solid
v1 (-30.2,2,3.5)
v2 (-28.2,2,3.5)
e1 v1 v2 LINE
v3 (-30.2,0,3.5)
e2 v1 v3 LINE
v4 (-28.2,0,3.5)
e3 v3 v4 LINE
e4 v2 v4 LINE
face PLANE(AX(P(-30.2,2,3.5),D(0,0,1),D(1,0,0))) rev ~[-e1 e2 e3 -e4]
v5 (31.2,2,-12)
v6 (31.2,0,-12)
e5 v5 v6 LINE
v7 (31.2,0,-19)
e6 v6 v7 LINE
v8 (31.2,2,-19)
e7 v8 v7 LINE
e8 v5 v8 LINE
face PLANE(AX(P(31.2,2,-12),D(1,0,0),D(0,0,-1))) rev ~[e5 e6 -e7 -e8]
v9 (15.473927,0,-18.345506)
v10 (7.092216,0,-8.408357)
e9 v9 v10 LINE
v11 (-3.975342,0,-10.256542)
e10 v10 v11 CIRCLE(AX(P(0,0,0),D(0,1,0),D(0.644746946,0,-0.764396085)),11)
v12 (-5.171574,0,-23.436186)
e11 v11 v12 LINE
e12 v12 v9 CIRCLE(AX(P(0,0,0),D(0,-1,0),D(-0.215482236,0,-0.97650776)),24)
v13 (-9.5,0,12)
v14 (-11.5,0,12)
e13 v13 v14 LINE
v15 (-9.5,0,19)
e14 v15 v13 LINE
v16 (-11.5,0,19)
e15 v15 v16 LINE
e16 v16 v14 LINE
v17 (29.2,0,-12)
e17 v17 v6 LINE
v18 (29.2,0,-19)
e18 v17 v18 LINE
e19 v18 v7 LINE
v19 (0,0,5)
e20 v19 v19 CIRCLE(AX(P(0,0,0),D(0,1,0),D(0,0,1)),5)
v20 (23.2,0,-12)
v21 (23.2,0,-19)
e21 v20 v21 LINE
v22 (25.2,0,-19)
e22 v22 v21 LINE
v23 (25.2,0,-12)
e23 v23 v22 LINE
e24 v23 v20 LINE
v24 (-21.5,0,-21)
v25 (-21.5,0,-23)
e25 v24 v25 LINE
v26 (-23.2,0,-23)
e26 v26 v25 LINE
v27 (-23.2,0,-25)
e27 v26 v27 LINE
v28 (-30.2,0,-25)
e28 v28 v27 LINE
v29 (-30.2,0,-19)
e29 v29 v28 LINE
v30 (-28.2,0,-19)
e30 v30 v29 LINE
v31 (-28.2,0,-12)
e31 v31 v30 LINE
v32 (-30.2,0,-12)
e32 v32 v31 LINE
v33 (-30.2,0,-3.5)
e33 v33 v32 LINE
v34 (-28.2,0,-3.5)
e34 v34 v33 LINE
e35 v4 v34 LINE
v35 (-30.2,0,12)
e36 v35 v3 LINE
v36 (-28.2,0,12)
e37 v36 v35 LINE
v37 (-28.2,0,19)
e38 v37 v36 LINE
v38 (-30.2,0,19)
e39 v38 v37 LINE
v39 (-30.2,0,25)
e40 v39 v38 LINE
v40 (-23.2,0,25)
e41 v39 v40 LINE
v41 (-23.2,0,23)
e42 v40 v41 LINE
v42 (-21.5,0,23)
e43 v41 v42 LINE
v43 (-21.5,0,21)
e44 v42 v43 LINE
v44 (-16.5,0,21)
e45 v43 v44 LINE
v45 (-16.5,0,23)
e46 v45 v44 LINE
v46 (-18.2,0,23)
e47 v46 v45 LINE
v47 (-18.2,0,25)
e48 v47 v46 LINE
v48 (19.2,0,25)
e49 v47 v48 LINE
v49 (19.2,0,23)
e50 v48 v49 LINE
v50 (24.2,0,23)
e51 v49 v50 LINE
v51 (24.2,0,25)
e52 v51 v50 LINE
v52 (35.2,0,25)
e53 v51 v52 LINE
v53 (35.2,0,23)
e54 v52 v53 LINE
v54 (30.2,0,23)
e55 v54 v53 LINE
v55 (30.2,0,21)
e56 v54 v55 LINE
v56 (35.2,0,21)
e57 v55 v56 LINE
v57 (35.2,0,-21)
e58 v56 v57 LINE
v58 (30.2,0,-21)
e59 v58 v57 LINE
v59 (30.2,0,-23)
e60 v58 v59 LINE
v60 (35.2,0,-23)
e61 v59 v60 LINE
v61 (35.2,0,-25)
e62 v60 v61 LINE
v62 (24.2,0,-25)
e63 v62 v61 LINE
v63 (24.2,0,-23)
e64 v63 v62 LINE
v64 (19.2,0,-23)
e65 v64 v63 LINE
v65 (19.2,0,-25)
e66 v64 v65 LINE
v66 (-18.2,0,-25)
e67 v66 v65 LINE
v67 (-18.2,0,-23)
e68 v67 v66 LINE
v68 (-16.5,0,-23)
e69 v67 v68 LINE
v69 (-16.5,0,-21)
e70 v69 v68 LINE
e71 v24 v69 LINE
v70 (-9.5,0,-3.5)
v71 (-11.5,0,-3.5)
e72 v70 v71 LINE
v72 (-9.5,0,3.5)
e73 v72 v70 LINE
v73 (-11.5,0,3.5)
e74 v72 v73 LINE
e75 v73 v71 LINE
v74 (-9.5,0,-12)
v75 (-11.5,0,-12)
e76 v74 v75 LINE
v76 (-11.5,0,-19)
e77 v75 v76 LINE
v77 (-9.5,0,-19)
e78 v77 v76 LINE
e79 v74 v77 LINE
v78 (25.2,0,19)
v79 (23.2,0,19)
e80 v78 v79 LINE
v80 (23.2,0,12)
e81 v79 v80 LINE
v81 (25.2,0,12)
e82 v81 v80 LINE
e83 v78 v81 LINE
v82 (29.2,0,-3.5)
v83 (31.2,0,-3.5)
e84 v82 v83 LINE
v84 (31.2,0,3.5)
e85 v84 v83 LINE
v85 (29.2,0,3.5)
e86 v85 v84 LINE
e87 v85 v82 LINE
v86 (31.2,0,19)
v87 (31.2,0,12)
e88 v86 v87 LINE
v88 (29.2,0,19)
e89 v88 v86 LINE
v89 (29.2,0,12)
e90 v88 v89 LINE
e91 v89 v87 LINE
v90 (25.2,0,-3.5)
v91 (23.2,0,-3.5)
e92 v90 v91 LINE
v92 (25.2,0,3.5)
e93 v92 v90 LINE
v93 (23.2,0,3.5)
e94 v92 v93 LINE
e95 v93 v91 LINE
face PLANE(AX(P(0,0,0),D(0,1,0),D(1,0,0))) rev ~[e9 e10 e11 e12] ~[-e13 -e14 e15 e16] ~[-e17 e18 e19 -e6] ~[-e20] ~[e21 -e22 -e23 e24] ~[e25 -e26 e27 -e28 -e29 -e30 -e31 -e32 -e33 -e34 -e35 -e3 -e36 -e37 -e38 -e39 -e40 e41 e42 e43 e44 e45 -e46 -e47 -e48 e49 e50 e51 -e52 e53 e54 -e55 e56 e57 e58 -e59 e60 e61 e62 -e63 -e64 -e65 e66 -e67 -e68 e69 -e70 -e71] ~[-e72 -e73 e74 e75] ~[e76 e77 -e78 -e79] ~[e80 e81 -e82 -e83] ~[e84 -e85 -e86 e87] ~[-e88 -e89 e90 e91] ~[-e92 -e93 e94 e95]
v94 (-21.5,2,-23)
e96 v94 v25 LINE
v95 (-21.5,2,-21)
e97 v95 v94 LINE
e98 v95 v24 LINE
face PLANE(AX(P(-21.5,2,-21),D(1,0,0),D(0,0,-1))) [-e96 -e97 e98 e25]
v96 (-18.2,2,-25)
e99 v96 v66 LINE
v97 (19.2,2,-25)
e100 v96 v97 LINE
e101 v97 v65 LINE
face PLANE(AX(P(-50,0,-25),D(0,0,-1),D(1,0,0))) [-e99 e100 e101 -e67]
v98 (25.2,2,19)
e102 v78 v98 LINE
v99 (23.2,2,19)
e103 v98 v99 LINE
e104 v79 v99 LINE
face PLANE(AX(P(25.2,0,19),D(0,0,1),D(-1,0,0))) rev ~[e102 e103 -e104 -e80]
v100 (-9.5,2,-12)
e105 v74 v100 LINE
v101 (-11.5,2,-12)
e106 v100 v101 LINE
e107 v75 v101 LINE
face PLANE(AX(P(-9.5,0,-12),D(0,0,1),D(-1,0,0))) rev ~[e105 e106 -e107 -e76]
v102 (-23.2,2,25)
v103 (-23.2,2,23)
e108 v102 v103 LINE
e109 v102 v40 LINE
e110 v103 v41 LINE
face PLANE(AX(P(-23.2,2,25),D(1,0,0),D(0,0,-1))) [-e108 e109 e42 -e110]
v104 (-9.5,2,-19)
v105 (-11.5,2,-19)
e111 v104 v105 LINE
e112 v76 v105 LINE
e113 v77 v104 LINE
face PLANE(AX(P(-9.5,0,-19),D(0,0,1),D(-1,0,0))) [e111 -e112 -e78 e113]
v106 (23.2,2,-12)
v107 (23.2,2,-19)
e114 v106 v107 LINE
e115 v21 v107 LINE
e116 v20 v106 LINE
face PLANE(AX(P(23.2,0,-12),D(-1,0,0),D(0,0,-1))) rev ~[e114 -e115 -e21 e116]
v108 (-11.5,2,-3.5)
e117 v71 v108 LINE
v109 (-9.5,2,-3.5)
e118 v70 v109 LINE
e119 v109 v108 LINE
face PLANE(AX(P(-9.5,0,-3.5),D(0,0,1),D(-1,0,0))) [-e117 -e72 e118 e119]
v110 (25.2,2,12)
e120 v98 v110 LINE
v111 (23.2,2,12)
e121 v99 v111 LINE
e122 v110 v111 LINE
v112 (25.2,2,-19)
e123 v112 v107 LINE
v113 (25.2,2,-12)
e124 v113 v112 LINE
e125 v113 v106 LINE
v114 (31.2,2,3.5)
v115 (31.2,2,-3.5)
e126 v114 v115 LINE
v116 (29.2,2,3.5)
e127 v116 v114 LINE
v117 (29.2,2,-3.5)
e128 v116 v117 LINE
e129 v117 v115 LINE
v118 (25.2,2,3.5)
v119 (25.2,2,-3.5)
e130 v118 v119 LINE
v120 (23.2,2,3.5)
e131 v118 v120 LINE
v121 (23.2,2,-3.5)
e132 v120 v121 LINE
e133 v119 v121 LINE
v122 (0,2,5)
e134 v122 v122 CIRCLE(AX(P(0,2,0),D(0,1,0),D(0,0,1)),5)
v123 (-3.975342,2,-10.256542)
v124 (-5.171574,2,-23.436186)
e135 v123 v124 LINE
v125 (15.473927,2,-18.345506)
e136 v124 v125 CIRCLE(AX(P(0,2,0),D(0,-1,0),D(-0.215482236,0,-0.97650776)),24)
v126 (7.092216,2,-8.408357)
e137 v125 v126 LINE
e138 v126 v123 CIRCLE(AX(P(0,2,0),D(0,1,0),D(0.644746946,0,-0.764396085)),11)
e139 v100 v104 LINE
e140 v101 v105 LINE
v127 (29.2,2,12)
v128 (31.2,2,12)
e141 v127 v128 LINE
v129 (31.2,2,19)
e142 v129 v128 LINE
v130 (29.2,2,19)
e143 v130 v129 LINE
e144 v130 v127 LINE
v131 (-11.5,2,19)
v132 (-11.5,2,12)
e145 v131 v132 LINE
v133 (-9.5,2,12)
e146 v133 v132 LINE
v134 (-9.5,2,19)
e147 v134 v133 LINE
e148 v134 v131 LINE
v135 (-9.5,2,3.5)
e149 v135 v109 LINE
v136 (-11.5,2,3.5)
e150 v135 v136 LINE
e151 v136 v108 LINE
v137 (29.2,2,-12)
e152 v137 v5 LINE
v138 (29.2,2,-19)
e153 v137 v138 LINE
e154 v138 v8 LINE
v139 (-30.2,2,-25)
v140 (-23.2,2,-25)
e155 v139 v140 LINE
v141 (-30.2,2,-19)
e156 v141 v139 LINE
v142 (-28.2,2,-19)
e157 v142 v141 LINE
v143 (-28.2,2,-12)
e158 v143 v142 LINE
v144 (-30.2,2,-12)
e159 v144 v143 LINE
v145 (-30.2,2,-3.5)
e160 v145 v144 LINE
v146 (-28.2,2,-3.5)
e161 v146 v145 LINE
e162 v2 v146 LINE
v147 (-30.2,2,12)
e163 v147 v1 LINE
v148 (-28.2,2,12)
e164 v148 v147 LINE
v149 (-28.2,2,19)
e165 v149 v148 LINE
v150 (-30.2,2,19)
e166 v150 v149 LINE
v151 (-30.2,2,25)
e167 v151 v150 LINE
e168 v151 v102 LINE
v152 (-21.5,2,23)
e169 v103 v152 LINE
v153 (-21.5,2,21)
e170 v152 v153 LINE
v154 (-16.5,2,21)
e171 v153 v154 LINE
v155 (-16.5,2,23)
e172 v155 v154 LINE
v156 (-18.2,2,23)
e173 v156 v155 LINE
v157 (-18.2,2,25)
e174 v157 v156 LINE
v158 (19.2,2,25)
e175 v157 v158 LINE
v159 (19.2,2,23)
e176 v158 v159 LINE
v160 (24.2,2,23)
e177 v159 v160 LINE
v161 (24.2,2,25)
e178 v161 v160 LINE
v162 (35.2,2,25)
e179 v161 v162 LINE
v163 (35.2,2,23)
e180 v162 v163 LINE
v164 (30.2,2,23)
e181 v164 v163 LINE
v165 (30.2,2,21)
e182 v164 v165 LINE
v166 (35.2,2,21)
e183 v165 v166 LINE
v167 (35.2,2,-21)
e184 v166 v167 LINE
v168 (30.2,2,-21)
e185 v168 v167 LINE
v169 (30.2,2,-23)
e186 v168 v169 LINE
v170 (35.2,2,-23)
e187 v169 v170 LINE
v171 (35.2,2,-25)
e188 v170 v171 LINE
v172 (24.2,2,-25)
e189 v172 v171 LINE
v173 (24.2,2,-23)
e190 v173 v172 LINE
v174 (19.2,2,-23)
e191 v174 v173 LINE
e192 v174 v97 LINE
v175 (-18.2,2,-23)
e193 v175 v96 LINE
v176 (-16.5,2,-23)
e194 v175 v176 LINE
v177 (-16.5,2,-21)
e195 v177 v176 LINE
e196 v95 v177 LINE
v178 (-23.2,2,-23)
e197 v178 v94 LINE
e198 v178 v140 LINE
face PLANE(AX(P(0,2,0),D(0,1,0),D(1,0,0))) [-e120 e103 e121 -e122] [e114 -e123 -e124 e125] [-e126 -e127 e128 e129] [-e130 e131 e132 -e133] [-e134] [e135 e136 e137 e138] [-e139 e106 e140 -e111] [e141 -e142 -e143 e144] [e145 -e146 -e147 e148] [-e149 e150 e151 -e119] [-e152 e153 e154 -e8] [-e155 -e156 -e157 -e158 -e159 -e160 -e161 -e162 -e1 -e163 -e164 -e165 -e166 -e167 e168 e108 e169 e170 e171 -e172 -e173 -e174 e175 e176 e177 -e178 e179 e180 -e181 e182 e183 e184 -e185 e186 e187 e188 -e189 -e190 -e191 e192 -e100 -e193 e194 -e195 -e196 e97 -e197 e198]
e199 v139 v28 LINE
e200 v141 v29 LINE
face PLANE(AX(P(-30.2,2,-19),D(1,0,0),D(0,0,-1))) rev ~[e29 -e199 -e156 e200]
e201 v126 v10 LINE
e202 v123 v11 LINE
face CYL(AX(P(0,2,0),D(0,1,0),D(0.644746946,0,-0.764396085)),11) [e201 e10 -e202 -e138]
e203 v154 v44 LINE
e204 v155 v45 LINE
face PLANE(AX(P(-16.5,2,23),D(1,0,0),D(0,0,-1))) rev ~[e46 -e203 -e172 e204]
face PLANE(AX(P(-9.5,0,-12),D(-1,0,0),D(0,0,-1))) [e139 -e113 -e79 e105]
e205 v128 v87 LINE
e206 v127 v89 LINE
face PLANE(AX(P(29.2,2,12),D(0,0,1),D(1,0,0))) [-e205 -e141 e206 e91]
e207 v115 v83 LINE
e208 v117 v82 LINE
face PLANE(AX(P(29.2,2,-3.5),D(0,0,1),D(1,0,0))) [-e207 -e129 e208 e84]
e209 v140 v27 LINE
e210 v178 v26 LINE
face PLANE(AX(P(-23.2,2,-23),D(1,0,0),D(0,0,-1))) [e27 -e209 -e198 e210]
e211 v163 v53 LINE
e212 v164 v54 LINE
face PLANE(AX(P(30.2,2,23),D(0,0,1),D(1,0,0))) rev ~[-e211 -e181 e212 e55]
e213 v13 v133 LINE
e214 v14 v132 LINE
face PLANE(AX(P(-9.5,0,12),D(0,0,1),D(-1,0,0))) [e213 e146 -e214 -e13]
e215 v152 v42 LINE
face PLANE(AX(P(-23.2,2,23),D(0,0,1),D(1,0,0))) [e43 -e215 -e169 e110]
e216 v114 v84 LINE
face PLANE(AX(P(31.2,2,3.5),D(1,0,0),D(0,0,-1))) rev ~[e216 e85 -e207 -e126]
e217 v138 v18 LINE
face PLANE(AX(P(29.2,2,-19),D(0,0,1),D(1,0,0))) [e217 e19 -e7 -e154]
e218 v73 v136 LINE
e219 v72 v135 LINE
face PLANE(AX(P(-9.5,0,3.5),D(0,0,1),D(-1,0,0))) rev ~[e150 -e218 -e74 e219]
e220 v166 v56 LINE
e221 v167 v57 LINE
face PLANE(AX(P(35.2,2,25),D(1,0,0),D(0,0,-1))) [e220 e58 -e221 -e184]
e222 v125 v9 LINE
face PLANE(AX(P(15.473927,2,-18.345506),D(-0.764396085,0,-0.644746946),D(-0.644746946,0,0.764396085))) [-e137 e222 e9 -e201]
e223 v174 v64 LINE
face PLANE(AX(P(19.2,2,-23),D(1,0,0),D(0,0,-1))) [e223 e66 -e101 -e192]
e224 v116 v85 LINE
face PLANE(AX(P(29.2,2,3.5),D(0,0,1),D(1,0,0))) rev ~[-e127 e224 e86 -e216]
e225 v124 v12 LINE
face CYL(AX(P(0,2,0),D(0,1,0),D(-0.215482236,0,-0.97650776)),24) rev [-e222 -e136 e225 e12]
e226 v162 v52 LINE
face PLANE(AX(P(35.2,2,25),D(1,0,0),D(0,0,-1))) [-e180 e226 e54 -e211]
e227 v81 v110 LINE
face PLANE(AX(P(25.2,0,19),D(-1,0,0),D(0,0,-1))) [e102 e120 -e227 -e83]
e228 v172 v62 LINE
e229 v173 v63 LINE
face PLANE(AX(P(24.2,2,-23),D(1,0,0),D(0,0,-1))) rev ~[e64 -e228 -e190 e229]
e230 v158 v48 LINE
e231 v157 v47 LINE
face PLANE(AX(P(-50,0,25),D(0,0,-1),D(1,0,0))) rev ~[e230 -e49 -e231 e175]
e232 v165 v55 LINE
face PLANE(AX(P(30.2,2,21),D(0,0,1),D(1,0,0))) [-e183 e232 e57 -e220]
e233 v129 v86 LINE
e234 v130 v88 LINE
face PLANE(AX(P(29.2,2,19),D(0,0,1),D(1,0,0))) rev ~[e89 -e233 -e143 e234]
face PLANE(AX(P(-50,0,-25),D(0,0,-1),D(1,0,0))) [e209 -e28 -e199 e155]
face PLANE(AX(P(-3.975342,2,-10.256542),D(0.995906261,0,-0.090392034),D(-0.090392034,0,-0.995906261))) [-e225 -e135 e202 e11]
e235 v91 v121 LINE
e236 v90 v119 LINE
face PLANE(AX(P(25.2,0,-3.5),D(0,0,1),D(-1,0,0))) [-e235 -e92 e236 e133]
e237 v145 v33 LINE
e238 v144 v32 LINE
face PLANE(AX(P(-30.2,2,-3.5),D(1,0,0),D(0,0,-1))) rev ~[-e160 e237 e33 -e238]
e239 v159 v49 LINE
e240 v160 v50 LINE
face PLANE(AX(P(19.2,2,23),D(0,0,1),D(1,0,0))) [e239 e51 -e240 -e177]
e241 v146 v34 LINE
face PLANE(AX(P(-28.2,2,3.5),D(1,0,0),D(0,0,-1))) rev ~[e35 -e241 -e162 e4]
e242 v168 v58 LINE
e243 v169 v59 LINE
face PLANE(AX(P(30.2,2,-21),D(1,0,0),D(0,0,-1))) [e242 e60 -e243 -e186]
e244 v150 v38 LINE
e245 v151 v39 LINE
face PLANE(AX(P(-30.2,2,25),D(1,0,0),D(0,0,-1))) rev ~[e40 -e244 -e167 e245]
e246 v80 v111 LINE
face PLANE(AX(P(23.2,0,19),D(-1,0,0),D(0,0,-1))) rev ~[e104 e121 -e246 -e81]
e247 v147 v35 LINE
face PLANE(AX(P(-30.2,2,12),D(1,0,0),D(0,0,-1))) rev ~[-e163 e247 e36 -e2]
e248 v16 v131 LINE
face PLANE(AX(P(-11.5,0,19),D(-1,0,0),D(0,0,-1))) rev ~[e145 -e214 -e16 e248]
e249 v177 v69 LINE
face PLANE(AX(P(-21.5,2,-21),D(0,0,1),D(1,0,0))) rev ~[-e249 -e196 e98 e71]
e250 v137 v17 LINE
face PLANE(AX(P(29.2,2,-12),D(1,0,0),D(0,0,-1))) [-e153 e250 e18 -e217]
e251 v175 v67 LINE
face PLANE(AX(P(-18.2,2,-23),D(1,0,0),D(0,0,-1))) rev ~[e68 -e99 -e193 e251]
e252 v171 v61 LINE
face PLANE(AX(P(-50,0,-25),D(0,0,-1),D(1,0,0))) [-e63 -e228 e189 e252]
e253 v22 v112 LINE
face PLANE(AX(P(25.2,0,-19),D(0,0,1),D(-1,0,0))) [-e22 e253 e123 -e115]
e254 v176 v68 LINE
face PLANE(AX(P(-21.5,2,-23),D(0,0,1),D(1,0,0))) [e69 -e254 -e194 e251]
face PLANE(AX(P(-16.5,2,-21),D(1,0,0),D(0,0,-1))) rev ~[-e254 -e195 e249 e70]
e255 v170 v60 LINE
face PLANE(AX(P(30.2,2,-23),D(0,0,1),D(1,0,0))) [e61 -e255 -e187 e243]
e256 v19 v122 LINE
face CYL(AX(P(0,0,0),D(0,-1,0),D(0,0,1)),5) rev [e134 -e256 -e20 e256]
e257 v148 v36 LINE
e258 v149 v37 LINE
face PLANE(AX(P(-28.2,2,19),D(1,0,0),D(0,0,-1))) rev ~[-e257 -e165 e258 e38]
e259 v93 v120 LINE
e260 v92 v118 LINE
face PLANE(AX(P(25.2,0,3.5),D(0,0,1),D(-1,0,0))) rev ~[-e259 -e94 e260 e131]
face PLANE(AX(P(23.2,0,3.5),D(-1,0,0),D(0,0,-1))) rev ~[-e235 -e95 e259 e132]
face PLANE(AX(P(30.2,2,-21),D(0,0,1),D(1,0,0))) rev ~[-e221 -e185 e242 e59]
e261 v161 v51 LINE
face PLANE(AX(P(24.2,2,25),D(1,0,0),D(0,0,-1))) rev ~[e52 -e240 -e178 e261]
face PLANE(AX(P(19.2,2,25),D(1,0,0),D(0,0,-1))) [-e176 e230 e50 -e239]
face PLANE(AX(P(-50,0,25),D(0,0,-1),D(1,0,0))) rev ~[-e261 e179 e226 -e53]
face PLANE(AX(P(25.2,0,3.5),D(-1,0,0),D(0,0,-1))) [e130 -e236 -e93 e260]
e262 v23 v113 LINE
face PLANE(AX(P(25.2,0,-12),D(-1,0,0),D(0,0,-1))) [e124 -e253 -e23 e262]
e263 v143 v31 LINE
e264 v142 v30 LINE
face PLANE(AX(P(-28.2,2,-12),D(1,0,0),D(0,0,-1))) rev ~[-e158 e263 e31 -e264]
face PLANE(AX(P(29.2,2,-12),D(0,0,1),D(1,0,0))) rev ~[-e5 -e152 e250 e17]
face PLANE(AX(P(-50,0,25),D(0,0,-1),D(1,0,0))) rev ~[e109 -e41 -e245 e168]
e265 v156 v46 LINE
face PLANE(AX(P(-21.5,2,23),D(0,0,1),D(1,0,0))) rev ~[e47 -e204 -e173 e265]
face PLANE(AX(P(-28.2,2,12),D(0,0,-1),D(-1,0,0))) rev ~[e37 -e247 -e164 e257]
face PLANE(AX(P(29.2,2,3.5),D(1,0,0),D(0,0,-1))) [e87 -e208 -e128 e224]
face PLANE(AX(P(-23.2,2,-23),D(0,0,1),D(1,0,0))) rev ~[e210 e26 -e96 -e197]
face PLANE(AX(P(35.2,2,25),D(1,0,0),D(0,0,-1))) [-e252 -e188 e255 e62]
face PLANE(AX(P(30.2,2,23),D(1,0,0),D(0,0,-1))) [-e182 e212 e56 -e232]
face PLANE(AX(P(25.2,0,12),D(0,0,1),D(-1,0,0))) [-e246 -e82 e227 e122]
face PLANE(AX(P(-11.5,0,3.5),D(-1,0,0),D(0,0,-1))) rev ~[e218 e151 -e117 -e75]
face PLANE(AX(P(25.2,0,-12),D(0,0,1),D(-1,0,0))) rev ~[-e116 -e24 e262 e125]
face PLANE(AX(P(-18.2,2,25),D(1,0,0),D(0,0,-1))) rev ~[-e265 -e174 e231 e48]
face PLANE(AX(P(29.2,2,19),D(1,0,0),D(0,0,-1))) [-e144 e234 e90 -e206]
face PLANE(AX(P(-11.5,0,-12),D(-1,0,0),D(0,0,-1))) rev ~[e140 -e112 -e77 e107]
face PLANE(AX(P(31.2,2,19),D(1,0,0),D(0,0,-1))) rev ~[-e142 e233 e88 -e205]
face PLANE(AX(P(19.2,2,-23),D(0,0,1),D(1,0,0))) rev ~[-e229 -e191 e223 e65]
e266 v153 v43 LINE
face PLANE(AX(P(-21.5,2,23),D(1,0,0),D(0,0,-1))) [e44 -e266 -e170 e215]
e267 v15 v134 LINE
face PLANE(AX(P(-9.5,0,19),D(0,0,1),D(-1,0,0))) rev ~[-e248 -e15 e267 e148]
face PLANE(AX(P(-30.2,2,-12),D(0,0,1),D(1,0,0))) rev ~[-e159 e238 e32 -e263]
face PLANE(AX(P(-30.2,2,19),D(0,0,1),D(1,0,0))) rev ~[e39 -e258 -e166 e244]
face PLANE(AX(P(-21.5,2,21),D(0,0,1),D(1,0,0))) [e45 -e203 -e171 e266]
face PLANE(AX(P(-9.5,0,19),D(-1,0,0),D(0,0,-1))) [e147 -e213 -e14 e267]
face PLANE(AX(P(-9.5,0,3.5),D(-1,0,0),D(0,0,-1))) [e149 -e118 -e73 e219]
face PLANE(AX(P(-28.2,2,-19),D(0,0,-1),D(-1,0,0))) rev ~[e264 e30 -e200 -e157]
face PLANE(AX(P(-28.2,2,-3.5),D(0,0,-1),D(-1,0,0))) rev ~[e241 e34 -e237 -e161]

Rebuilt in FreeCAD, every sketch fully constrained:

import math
import FreeCAD as App
import Part
import Sketcher

doc = App.newDocument("Part")
body = doc.addObject("PartDesign::Body", "Body")

# Sketch on XZ plane
sketch1 = body.newObject("Sketcher::SketchObject", "Sketch")
sketch1.AttachmentSupport = (doc.getObject("XZ_Plane"), [""])
sketch1.MapMode = "FlatFace"
sketch1.addGeometry([
    Part.LineSegment(App.Vector(-50, -25, 0), App.Vector(-50, 25, 0)),  # 0
    Part.LineSegment(App.Vector(-50, 25, 0), App.Vector(50, 25, 0)),  # 1
    Part.LineSegment(App.Vector(50, 25, 0), App.Vector(50, -25, 0)),  # 2
    Part.LineSegment(App.Vector(50, -25, 0), App.Vector(-50, -25, 0)),  # 3
    Part.Circle(App.Vector(0, 0, 0), App.Vector(0, 0, 1), 5),  # 4
], False)
sketch1.addConstraint([
    Sketcher.Constraint("Coincident", 0, 2, 1, 1),
    Sketcher.Constraint("Coincident", 1, 2, 2, 1),
    Sketcher.Constraint("Coincident", 2, 2, 3, 1),
    Sketcher.Constraint("Coincident", 3, 2, 0, 1),
    Sketcher.Constraint("Vertical", 0),
    Sketcher.Constraint("Horizontal", 1),
    Sketcher.Constraint("Vertical", 2),
    Sketcher.Constraint("Horizontal", 3),
    Sketcher.Constraint("Coincident", 4, 3, -1, 1),
    Sketcher.Constraint("Symmetric", 0, 2, 2, 2, -1, 1),
    Sketcher.Constraint("Diameter", 4, 10.0),
    Sketcher.Constraint("DistanceX", 1, 1, 1, 2, 100.0),
    Sketcher.Constraint("DistanceY", 0, 1, 0, 2, 50.0),
])
pad1 = body.newObject("PartDesign::Pad", "Pad")
pad1.Profile = sketch1
pad1.Length = 2
pad1.Reversed = True

# Sketch on XZ plane
sketch2 = body.newObject("Sketcher::SketchObject", "Sketch001")
sketch2.AttachmentSupport = (doc.getObject("XZ_Plane"), [""])
sketch2.MapMode = "FlatFace"
sketch2.addGeometry([
    Part.LineSegment(App.Vector(25.2, 12, 0), App.Vector(25.2, 19, 0)),  # 0
    Part.LineSegment(App.Vector(25.2, 19, 0), App.Vector(23.2, 19, 0)),  # 1
    Part.LineSegment(App.Vector(23.2, 19, 0), App.Vector(23.2, 12, 0)),  # 2
    Part.LineSegment(App.Vector(23.2, 12, 0), App.Vector(25.2, 12, 0)),  # 3
    Part.LineSegment(App.Vector(25.2, -3.5, 0), App.Vector(25.2, 3.5, 0)),  # 4
    Part.LineSegment(App.Vector(25.2, 3.5, 0), App.Vector(23.2, 3.5, 0)),  # 5
    Part.LineSegment(App.Vector(23.2, 3.5, 0), App.Vector(23.2, -3.5, 0)),  # 6
    Part.LineSegment(App.Vector(23.2, -3.5, 0), App.Vector(25.2, -3.5, 0)),  # 7
    Part.LineSegment(App.Vector(25.2, -19, 0), App.Vector(25.2, -12, 0)),  # 8
    Part.LineSegment(App.Vector(25.2, -12, 0), App.Vector(23.2, -12, 0)),  # 9
    Part.LineSegment(App.Vector(23.2, -12, 0), App.Vector(23.2, -19, 0)),  # 10
    Part.LineSegment(App.Vector(23.2, -19, 0), App.Vector(25.2, -19, 0)),  # 11
    Part.LineSegment(App.Vector(-9.5, -19, 0), App.Vector(-9.5, -12, 0)),  # 12
    Part.LineSegment(App.Vector(-9.5, -12, 0), App.Vector(-11.5, -12, 0)),  # 13
    Part.LineSegment(App.Vector(-11.5, -12, 0), App.Vector(-11.5, -19, 0)),  # 14
    Part.LineSegment(App.Vector(-11.5, -19, 0), App.Vector(-9.5, -19, 0)),  # 15
    Part.LineSegment(App.Vector(-9.5, -3.5, 0), App.Vector(-9.5, 3.5, 0)),  # 16
    Part.LineSegment(App.Vector(-9.5, 3.5, 0), App.Vector(-11.5, 3.5, 0)),  # 17
    Part.LineSegment(App.Vector(-11.5, 3.5, 0), App.Vector(-11.5, -3.5, 0)),  # 18
    Part.LineSegment(App.Vector(-11.5, -3.5, 0), App.Vector(-9.5, -3.5, 0)),  # 19
    Part.LineSegment(App.Vector(-9.5, 12, 0), App.Vector(-9.5, 19, 0)),  # 20
    Part.LineSegment(App.Vector(-9.5, 19, 0), App.Vector(-11.5, 19, 0)),  # 21
    Part.LineSegment(App.Vector(-11.5, 19, 0), App.Vector(-11.5, 12, 0)),  # 22
    Part.LineSegment(App.Vector(-11.5, 12, 0), App.Vector(-9.5, 12, 0)),  # 23
], False)
sketch2.addConstraint([
    Sketcher.Constraint("Coincident", 0, 2, 1, 1),
    Sketcher.Constraint("Coincident", 1, 2, 2, 1),
    Sketcher.Constraint("Coincident", 2, 2, 3, 1),
    Sketcher.Constraint("Coincident", 3, 2, 0, 1),
    Sketcher.Constraint("Coincident", 4, 2, 5, 1),
    Sketcher.Constraint("Coincident", 5, 2, 6, 1),
    Sketcher.Constraint("Coincident", 6, 2, 7, 1),
    Sketcher.Constraint("Coincident", 7, 2, 4, 1),
    Sketcher.Constraint("Coincident", 8, 2, 9, 1),
    Sketcher.Constraint("Coincident", 9, 2, 10, 1),
    Sketcher.Constraint("Coincident", 10, 2, 11, 1),
    Sketcher.Constraint("Coincident", 11, 2, 8, 1),
    Sketcher.Constraint("Coincident", 12, 2, 13, 1),
    Sketcher.Constraint("Coincident", 13, 2, 14, 1),
    Sketcher.Constraint("Coincident", 14, 2, 15, 1),
    Sketcher.Constraint("Coincident", 15, 2, 12, 1),
    Sketcher.Constraint("Coincident", 16, 2, 17, 1),
    Sketcher.Constraint("Coincident", 17, 2, 18, 1),
    Sketcher.Constraint("Coincident", 18, 2, 19, 1),
    Sketcher.Constraint("Coincident", 19, 2, 16, 1),
    Sketcher.Constraint("Coincident", 20, 2, 21, 1),
    Sketcher.Constraint("Coincident", 21, 2, 22, 1),
    Sketcher.Constraint("Coincident", 22, 2, 23, 1),
    Sketcher.Constraint("Coincident", 23, 2, 20, 1),
    Sketcher.Constraint("Vertical", 0),
    Sketcher.Constraint("Horizontal", 1),
    Sketcher.Constraint("Vertical", 2),
    Sketcher.Constraint("Horizontal", 3),
    Sketcher.Constraint("Vertical", 4),
    Sketcher.Constraint("Horizontal", 5),
    Sketcher.Constraint("Vertical", 6),
    Sketcher.Constraint("Horizontal", 7),
    Sketcher.Constraint("Vertical", 8),
    Sketcher.Constraint("Horizontal", 9),
    Sketcher.Constraint("Vertical", 10),
    Sketcher.Constraint("Horizontal", 11),
    Sketcher.Constraint("Vertical", 12),
    Sketcher.Constraint("Horizontal", 13),
    Sketcher.Constraint("Vertical", 14),
    Sketcher.Constraint("Horizontal", 15),
    Sketcher.Constraint("Vertical", 16),
    Sketcher.Constraint("Horizontal", 17),
    Sketcher.Constraint("Vertical", 18),
    Sketcher.Constraint("Horizontal", 19),
    Sketcher.Constraint("Vertical", 20),
    Sketcher.Constraint("Horizontal", 21),
    Sketcher.Constraint("Vertical", 22),
    Sketcher.Constraint("Horizontal", 23),
    Sketcher.Constraint("Symmetric", 3, 2, 8, 2, -1),
    Sketcher.Constraint("Symmetric", 1, 2, 10, 2, -1),
    Sketcher.Constraint("Symmetric", 15, 2, 20, 2, -1),
    Sketcher.Constraint("Symmetric", 13, 2, 22, 2, -1),
    Sketcher.Constraint("Horizontal", 9, 2, 12, 2),
    Sketcher.Constraint("Horizontal", 11, 2, 14, 2),
    Sketcher.Constraint("Horizontal", 5, 2, 16, 2),
    Sketcher.Constraint("Horizontal", 7, 2, 18, 2),
    Sketcher.Constraint("Vertical", 3, 2, 4, 2),
    Sketcher.Constraint("Vertical", 2, 2, 5, 2),
    Sketcher.Constraint("Vertical", 15, 2, 16, 2),
    Sketcher.Constraint("Vertical", 14, 2, 17, 2),
    Sketcher.Constraint("Equal", 11, 13),
    Sketcher.Constraint("Equal", 2, 4),
    Sketcher.Constraint("DistanceX", 1, 2, 1, 1, 2.0),
    Sketcher.Constraint("DistanceY", 0, 1, 0, 2, 7.0),
    Sketcher.Constraint("DistanceY", -1, 1, 0, 2, 19.0),
    Sketcher.Constraint("DistanceX", -1, 1, 0, 2, 25.2),
    Sketcher.Constraint("DistanceY", -1, 1, 4, 2, 3.5),
    Sketcher.Constraint("DistanceX", 12, 2, -1, 1, 9.5),
])
pocket1 = body.newObject("PartDesign::Pocket", "Pocket")
pocket1.Profile = sketch2
pocket1.Length = 2

# Sketch on XZ plane
sketch3 = body.newObject("Sketcher::SketchObject", "Sketch002")
sketch3.AttachmentSupport = (doc.getObject("XZ_Plane"), [""])
sketch3.MapMode = "FlatFace"
sketch3.AttachmentOffset = App.Placement(App.Vector(0, 0, -2), App.Rotation())
sketch3.addGeometry([
    Part.ArcOfCircle(Part.Circle(App.Vector(0, 0, 0), App.Vector(0, 0, 1), 24), math.radians(-102.443821), math.radians(-49.853295)),
    Part.LineSegment(App.Vector(-5.171574, -23.436186, 0), App.Vector(-3.975342, -10.256542, 0)),
    Part.ArcOfCircle(Part.Circle(App.Vector(0, 0, 0), App.Vector(0, 0, 1), 11), math.radians(-111.185874), math.radians(-49.853295)),
    Part.LineSegment(App.Vector(7.092216, -8.408357, 0), App.Vector(15.473927, -18.345506, 0)),
], False)
sketch3.addConstraint([
    Sketcher.Constraint("Coincident", 0, 1, 1, 1),
    Sketcher.Constraint("Coincident", 1, 2, 2, 1),
    Sketcher.Constraint("Coincident", 2, 2, 3, 1),
    Sketcher.Constraint("Coincident", 3, 2, 0, 2),
    Sketcher.Constraint("Coincident", 0, 3, -1, 1),
    Sketcher.Constraint("Coincident", 2, 3, -1, 1),
    Sketcher.Constraint("Radius", 0, 24.0),
    Sketcher.Constraint("Radius", 2, 11.0),
    Sketcher.Constraint("DistanceX", 0, 1, 3, 2, 20.6455),
    Sketcher.Constraint("Distance", 1, 13.23382),
    Sketcher.Constraint("DistanceX", 1, 2, -1, 1, 3.975342),
    Sketcher.Constraint("DistanceX", 1, 2, 2, 2, 11.067558),
])
pocket2 = body.newObject("PartDesign::Pocket", "Pocket001")
pocket2.Profile = sketch3
pocket2.Length = 2
pocket2.Reversed = True

# Sketch on XZ plane
sketch4 = body.newObject("Sketcher::SketchObject", "Sketch003")
sketch4.AttachmentSupport = (doc.getObject("XZ_Plane"), [""])
sketch4.MapMode = "FlatFace"
sketch4.AttachmentOffset = App.Placement(App.Vector(0, 0, -2), App.Rotation())
sketch4.addGeometry([
    Part.LineSegment(App.Vector(30.2, -23, 0), App.Vector(30.2, -21, 0)),  # 0
    Part.LineSegment(App.Vector(30.2, -21, 0), App.Vector(35.2, -21, 0)),  # 1
    Part.LineSegment(App.Vector(35.2, -21, 0), App.Vector(35.2, -23, 0)),  # 2
    Part.LineSegment(App.Vector(35.2, -23, 0), App.Vector(30.2, -23, 0)),  # 3
    Part.LineSegment(App.Vector(-21.5, -23, 0), App.Vector(-21.5, -21, 0)),  # 4
    Part.LineSegment(App.Vector(-21.5, -21, 0), App.Vector(-16.5, -21, 0)),  # 5
    Part.LineSegment(App.Vector(-16.5, -21, 0), App.Vector(-16.5, -23, 0)),  # 6
    Part.LineSegment(App.Vector(-16.5, -23, 0), App.Vector(-21.5, -23, 0)),  # 7
    Part.LineSegment(App.Vector(-21.5, 21, 0), App.Vector(-21.5, 23, 0)),  # 8
    Part.LineSegment(App.Vector(-21.5, 23, 0), App.Vector(-16.5, 23, 0)),  # 9
    Part.LineSegment(App.Vector(-16.5, 23, 0), App.Vector(-16.5, 21, 0)),  # 10
    Part.LineSegment(App.Vector(-16.5, 21, 0), App.Vector(-21.5, 21, 0)),  # 11
    Part.LineSegment(App.Vector(30.2, 21, 0), App.Vector(30.2, 23, 0)),  # 12
    Part.LineSegment(App.Vector(30.2, 23, 0), App.Vector(35.2, 23, 0)),  # 13
    Part.LineSegment(App.Vector(35.2, 23, 0), App.Vector(35.2, 21, 0)),  # 14
    Part.LineSegment(App.Vector(35.2, 21, 0), App.Vector(30.2, 21, 0)),  # 15
], False)
sketch4.addConstraint([
    Sketcher.Constraint("Coincident", 0, 2, 1, 1),
    Sketcher.Constraint("Coincident", 1, 2, 2, 1),
    Sketcher.Constraint("Coincident", 2, 2, 3, 1),
    Sketcher.Constraint("Coincident", 3, 2, 0, 1),
    Sketcher.Constraint("Coincident", 4, 2, 5, 1),
    Sketcher.Constraint("Coincident", 5, 2, 6, 1),
    Sketcher.Constraint("Coincident", 6, 2, 7, 1),
    Sketcher.Constraint("Coincident", 7, 2, 4, 1),
    Sketcher.Constraint("Coincident", 8, 2, 9, 1),
    Sketcher.Constraint("Coincident", 9, 2, 10, 1),
    Sketcher.Constraint("Coincident", 10, 2, 11, 1),
    Sketcher.Constraint("Coincident", 11, 2, 8, 1),
    Sketcher.Constraint("Coincident", 12, 2, 13, 1),
    Sketcher.Constraint("Coincident", 13, 2, 14, 1),
    Sketcher.Constraint("Coincident", 14, 2, 15, 1),
    Sketcher.Constraint("Coincident", 15, 2, 12, 1),
    Sketcher.Constraint("Vertical", 0),
    Sketcher.Constraint("Horizontal", 1),
    Sketcher.Constraint("Vertical", 2),
    Sketcher.Constraint("Horizontal", 3),
    Sketcher.Constraint("Vertical", 4),
    Sketcher.Constraint("Horizontal", 5),
    Sketcher.Constraint("Vertical", 6),
    Sketcher.Constraint("Horizontal", 7),
    Sketcher.Constraint("Vertical", 8),
    Sketcher.Constraint("Horizontal", 9),
    Sketcher.Constraint("Vertical", 10),
    Sketcher.Constraint("Horizontal", 11),
    Sketcher.Constraint("Vertical", 12),
    Sketcher.Constraint("Horizontal", 13),
    Sketcher.Constraint("Vertical", 14),
    Sketcher.Constraint("Horizontal", 15),
    Sketcher.Constraint("Symmetric", 7, 2, 8, 2, -1),
    Sketcher.Constraint("Symmetric", 5, 2, 10, 2, -1),
    Sketcher.Constraint("Symmetric", 3, 2, 12, 2, -1),
    Sketcher.Constraint("Symmetric", 1, 2, 14, 2, -1),
    Sketcher.Constraint("Horizontal", 1, 2, 4, 2),
    Sketcher.Constraint("Horizontal", 3, 2, 6, 2),
    Sketcher.Constraint("Equal", 3, 5),
    Sketcher.Constraint("DistanceX", 1, 1, 1, 2, 5.0),
    Sketcher.Constraint("DistanceY", 0, 1, 0, 2, 2.0),
    Sketcher.Constraint("DistanceY", 0, 2, -1, 1, 21.0),
    Sketcher.Constraint("DistanceX", -1, 1, 0, 2, 30.2),
    Sketcher.Constraint("DistanceX", 4, 2, -1, 1, 21.5),
])
pocket3 = body.newObject("PartDesign::Pocket", "Pocket002")
pocket3.Profile = sketch4
pocket3.Length = 2
pocket3.Reversed = True

# Sketch on XZ plane
sketch5 = body.newObject("Sketcher::SketchObject", "Sketch004")
sketch5.AttachmentSupport = (doc.getObject("XZ_Plane"), [""])
sketch5.MapMode = "FlatFace"
sketch5.AttachmentOffset = App.Placement(App.Vector(0, 0, -2), App.Rotation())
sketch5.addGeometry([
    Part.LineSegment(App.Vector(-50, -25, 0), App.Vector(-50, 25, 0)),  # 0
    Part.LineSegment(App.Vector(-50, 25, 0), App.Vector(-43.5, 25, 0)),  # 1
    Part.LineSegment(App.Vector(-43.5, 25, 0), App.Vector(-43.5, -25, 0)),  # 2
    Part.LineSegment(App.Vector(-43.5, -25, 0), App.Vector(-50, -25, 0)),  # 3
    Part.LineSegment(App.Vector(47.2, -25, 0), App.Vector(47.2, 25, 0)),  # 4
    Part.LineSegment(App.Vector(47.2, 25, 0), App.Vector(50, 25, 0)),  # 5
    Part.LineSegment(App.Vector(50, 25, 0), App.Vector(50, -25, 0)),  # 6
    Part.LineSegment(App.Vector(50, -25, 0), App.Vector(47.2, -25, 0)),  # 7
], False)
sketch5.addConstraint([
    Sketcher.Constraint("Coincident", 0, 2, 1, 1),
    Sketcher.Constraint("Coincident", 1, 2, 2, 1),
    Sketcher.Constraint("Coincident", 2, 2, 3, 1),
    Sketcher.Constraint("Coincident", 3, 2, 0, 1),
    Sketcher.Constraint("Coincident", 4, 2, 5, 1),
    Sketcher.Constraint("Coincident", 5, 2, 6, 1),
    Sketcher.Constraint("Coincident", 6, 2, 7, 1),
    Sketcher.Constraint("Coincident", 7, 2, 4, 1),
    Sketcher.Constraint("Vertical", 0),
    Sketcher.Constraint("Horizontal", 1),
    Sketcher.Constraint("Vertical", 2),
    Sketcher.Constraint("Horizontal", 3),
    Sketcher.Constraint("Vertical", 4),
    Sketcher.Constraint("Horizontal", 5),
    Sketcher.Constraint("Vertical", 6),
    Sketcher.Constraint("Horizontal", 7),
    Sketcher.Constraint("Symmetric", 3, 2, 5, 2, -1, 1),
    Sketcher.Constraint("Horizontal", 1, 2, 4, 2),
    Sketcher.Constraint("Horizontal", 3, 2, 6, 2),
    Sketcher.Constraint("DistanceY", 0, 1, 0, 2, 50.0),
    Sketcher.Constraint("DistanceX", 1, 1, 1, 2, 6.5),
    Sketcher.Constraint("DistanceX", 5, 1, 5, 2, 2.8),
    Sketcher.Constraint("DistanceX", 0, 2, -1, 1, 50.0),
])
pocket4 = body.newObject("PartDesign::Pocket", "Pocket003")
pocket4.Profile = sketch5
pocket4.Length = 6
pocket4.Reversed = True

# Sketch on XZ plane
sketch6 = body.newObject("Sketcher::SketchObject", "Sketch005")
sketch6.AttachmentSupport = (doc.getObject("XZ_Plane"), [""])
sketch6.MapMode = "FlatFace"
sketch6.AttachmentOffset = App.Placement(App.Vector(0, 0, -2), App.Rotation())
sketch6.addGeometry([
    Part.LineSegment(App.Vector(35.2, -25, 0), App.Vector(35.2, 25, 0)),  # 0
    Part.LineSegment(App.Vector(35.2, 25, 0), App.Vector(47.2, 25, 0)),  # 1
    Part.LineSegment(App.Vector(47.2, 25, 0), App.Vector(47.2, -25, 0)),  # 2
    Part.LineSegment(App.Vector(47.2, -25, 0), App.Vector(35.2, -25, 0)),  # 3
    Part.LineSegment(App.Vector(29.2, -19, 0), App.Vector(29.2, -12, 0)),  # 4
    Part.LineSegment(App.Vector(29.2, -12, 0), App.Vector(31.2, -12, 0)),  # 5
    Part.LineSegment(App.Vector(31.2, -12, 0), App.Vector(31.2, -19, 0)),  # 6
    Part.LineSegment(App.Vector(31.2, -19, 0), App.Vector(29.2, -19, 0)),  # 7
    Part.LineSegment(App.Vector(29.2, 12, 0), App.Vector(29.2, 19, 0)),  # 8
    Part.LineSegment(App.Vector(29.2, 19, 0), App.Vector(31.2, 19, 0)),  # 9
    Part.LineSegment(App.Vector(31.2, 19, 0), App.Vector(31.2, 12, 0)),  # 10
    Part.LineSegment(App.Vector(31.2, 12, 0), App.Vector(29.2, 12, 0)),  # 11
    Part.LineSegment(App.Vector(29.2, -3.5, 0), App.Vector(29.2, 3.5, 0)),  # 12
    Part.LineSegment(App.Vector(29.2, 3.5, 0), App.Vector(31.2, 3.5, 0)),  # 13
    Part.LineSegment(App.Vector(31.2, 3.5, 0), App.Vector(31.2, -3.5, 0)),  # 14
    Part.LineSegment(App.Vector(31.2, -3.5, 0), App.Vector(29.2, -3.5, 0)),  # 15
    Part.LineSegment(App.Vector(-28.2, -12, 0), App.Vector(-28.2, -19, 0)),  # 16
    Part.LineSegment(App.Vector(-28.2, -19, 0), App.Vector(-30.2, -19, 0)),  # 17
    Part.LineSegment(App.Vector(-30.2, -19, 0), App.Vector(-30.2, -25, 0)),  # 18
    Part.LineSegment(App.Vector(-30.2, -25, 0), App.Vector(-43.5, -25, 0)),  # 19
    Part.LineSegment(App.Vector(-43.5, -25, 0), App.Vector(-43.5, 25, 0)),  # 20
    Part.LineSegment(App.Vector(-43.5, 25, 0), App.Vector(-30.2, 25, 0)),  # 21
    Part.LineSegment(App.Vector(-30.2, 25, 0), App.Vector(-30.2, 19, 0)),  # 22
    Part.LineSegment(App.Vector(-30.2, 19, 0), App.Vector(-28.2, 19, 0)),  # 23
    Part.LineSegment(App.Vector(-28.2, 19, 0), App.Vector(-28.2, 12, 0)),  # 24
    Part.LineSegment(App.Vector(-28.2, 12, 0), App.Vector(-30.2, 12, 0)),  # 25
    Part.LineSegment(App.Vector(-30.2, 12, 0), App.Vector(-30.2, 3.5, 0)),  # 26
    Part.LineSegment(App.Vector(-30.2, 3.5, 0), App.Vector(-28.2, 3.5, 0)),  # 27
    Part.LineSegment(App.Vector(-28.2, 3.5, 0), App.Vector(-28.2, -3.5, 0)),  # 28
    Part.LineSegment(App.Vector(-28.2, -3.5, 0), App.Vector(-30.2, -3.5, 0)),  # 29
    Part.LineSegment(App.Vector(-30.2, -3.5, 0), App.Vector(-30.2, -12, 0)),  # 30
    Part.LineSegment(App.Vector(-30.2, -12, 0), App.Vector(-28.2, -12, 0)),  # 31
    Part.LineSegment(App.Vector(19.2, 23, 0), App.Vector(19.2, 25, 0)),  # 32
    Part.LineSegment(App.Vector(19.2, 25, 0), App.Vector(24.2, 25, 0)),  # 33
    Part.LineSegment(App.Vector(24.2, 25, 0), App.Vector(24.2, 23, 0)),  # 34
    Part.LineSegment(App.Vector(24.2, 23, 0), App.Vector(19.2, 23, 0)),  # 35
    Part.LineSegment(App.Vector(19.2, -25, 0), App.Vector(19.2, -23, 0)),  # 36
    Part.LineSegment(App.Vector(19.2, -23, 0), App.Vector(24.2, -23, 0)),  # 37
    Part.LineSegment(App.Vector(24.2, -23, 0), App.Vector(24.2, -25, 0)),  # 38
    Part.LineSegment(App.Vector(24.2, -25, 0), App.Vector(19.2, -25, 0)),  # 39
    Part.LineSegment(App.Vector(-23.2, -25, 0), App.Vector(-23.2, -23, 0)),  # 40
    Part.LineSegment(App.Vector(-23.2, -23, 0), App.Vector(-18.2, -23, 0)),  # 41
    Part.LineSegment(App.Vector(-18.2, -23, 0), App.Vector(-18.2, -25, 0)),  # 42
    Part.LineSegment(App.Vector(-18.2, -25, 0), App.Vector(-23.2, -25, 0)),  # 43
    Part.LineSegment(App.Vector(-23.2, 23, 0), App.Vector(-23.2, 25, 0)),  # 44
    Part.LineSegment(App.Vector(-23.2, 25, 0), App.Vector(-18.2, 25, 0)),  # 45
    Part.LineSegment(App.Vector(-18.2, 25, 0), App.Vector(-18.2, 23, 0)),  # 46
    Part.LineSegment(App.Vector(-18.2, 23, 0), App.Vector(-23.2, 23, 0)),  # 47
], False)
sketch6.addConstraint([
    Sketcher.Constraint("Coincident", 0, 2, 1, 1),
    Sketcher.Constraint("Coincident", 1, 2, 2, 1),
    Sketcher.Constraint("Coincident", 2, 2, 3, 1),
    Sketcher.Constraint("Coincident", 3, 2, 0, 1),
    Sketcher.Constraint("Coincident", 4, 2, 5, 1),
    Sketcher.Constraint("Coincident", 5, 2, 6, 1),
    Sketcher.Constraint("Coincident", 6, 2, 7, 1),
    Sketcher.Constraint("Coincident", 7, 2, 4, 1),
    Sketcher.Constraint("Coincident", 8, 2, 9, 1),
    Sketcher.Constraint("Coincident", 9, 2, 10, 1),
    Sketcher.Constraint("Coincident", 10, 2, 11, 1),
    Sketcher.Constraint("Coincident", 11, 2, 8, 1),
    Sketcher.Constraint("Coincident", 12, 2, 13, 1),
    Sketcher.Constraint("Coincident", 13, 2, 14, 1),
    Sketcher.Constraint("Coincident", 14, 2, 15, 1),
    Sketcher.Constraint("Coincident", 15, 2, 12, 1),
    Sketcher.Constraint("Coincident", 16, 2, 17, 1),
    Sketcher.Constraint("Coincident", 17, 2, 18, 1),
    Sketcher.Constraint("Coincident", 18, 2, 19, 1),
    Sketcher.Constraint("Coincident", 19, 2, 20, 1),
    Sketcher.Constraint("Coincident", 20, 2, 21, 1),
    Sketcher.Constraint("Coincident", 21, 2, 22, 1),
    Sketcher.Constraint("Coincident", 22, 2, 23, 1),
    Sketcher.Constraint("Coincident", 23, 2, 24, 1),
    Sketcher.Constraint("Coincident", 24, 2, 25, 1),
    Sketcher.Constraint("Coincident", 25, 2, 26, 1),
    Sketcher.Constraint("Coincident", 26, 2, 27, 1),
    Sketcher.Constraint("Coincident", 27, 2, 28, 1),
    Sketcher.Constraint("Coincident", 28, 2, 29, 1),
    Sketcher.Constraint("Coincident", 29, 2, 30, 1),
    Sketcher.Constraint("Coincident", 30, 2, 31, 1),
    Sketcher.Constraint("Coincident", 31, 2, 16, 1),
    Sketcher.Constraint("Coincident", 32, 2, 33, 1),
    Sketcher.Constraint("Coincident", 33, 2, 34, 1),
    Sketcher.Constraint("Coincident", 34, 2, 35, 1),
    Sketcher.Constraint("Coincident", 35, 2, 32, 1),
    Sketcher.Constraint("Coincident", 36, 2, 37, 1),
    Sketcher.Constraint("Coincident", 37, 2, 38, 1),
    Sketcher.Constraint("Coincident", 38, 2, 39, 1),
    Sketcher.Constraint("Coincident", 39, 2, 36, 1),
    Sketcher.Constraint("Coincident", 40, 2, 41, 1),
    Sketcher.Constraint("Coincident", 41, 2, 42, 1),
    Sketcher.Constraint("Coincident", 42, 2, 43, 1),
    Sketcher.Constraint("Coincident", 43, 2, 40, 1),
    Sketcher.Constraint("Coincident", 44, 2, 45, 1),
    Sketcher.Constraint("Coincident", 45, 2, 46, 1),
    Sketcher.Constraint("Coincident", 46, 2, 47, 1),
    Sketcher.Constraint("Coincident", 47, 2, 44, 1),
    Sketcher.Constraint("Vertical", 0),
    Sketcher.Constraint("Horizontal", 1),
    Sketcher.Constraint("Vertical", 2),
    Sketcher.Constraint("Horizontal", 3),
    Sketcher.Constraint("Vertical", 4),
    Sketcher.Constraint("Horizontal", 5),
    Sketcher.Constraint("Vertical", 6),
    Sketcher.Constraint("Horizontal", 7),
    Sketcher.Constraint("Vertical", 8),
    Sketcher.Constraint("Horizontal", 9),
    Sketcher.Constraint("Vertical", 10),
    Sketcher.Constraint("Horizontal", 11),
    Sketcher.Constraint("Vertical", 12),
    Sketcher.Constraint("Horizontal", 13),
    Sketcher.Constraint("Vertical", 14),
    Sketcher.Constraint("Horizontal", 15),
    Sketcher.Constraint("Vertical", 16),
    Sketcher.Constraint("Horizontal", 17),
    Sketcher.Constraint("Vertical", 18),
    Sketcher.Constraint("Horizontal", 19),
    Sketcher.Constraint("Vertical", 20),
    Sketcher.Constraint("Horizontal", 21),
    Sketcher.Constraint("Vertical", 22),
    Sketcher.Constraint("Horizontal", 23),
    Sketcher.Constraint("Vertical", 24),
    Sketcher.Constraint("Horizontal", 25),
    Sketcher.Constraint("Vertical", 26),
    Sketcher.Constraint("Horizontal", 27),
    Sketcher.Constraint("Vertical", 28),
    Sketcher.Constraint("Horizontal", 29),
    Sketcher.Constraint("Vertical", 30),
    Sketcher.Constraint("Horizontal", 31),
    Sketcher.Constraint("Vertical", 32),
    Sketcher.Constraint("Horizontal", 33),
    Sketcher.Constraint("Vertical", 34),
    Sketcher.Constraint("Horizontal", 35),
    Sketcher.Constraint("Vertical", 36),
    Sketcher.Constraint("Horizontal", 37),
    Sketcher.Constraint("Vertical", 38),
    Sketcher.Constraint("Horizontal", 39),
    Sketcher.Constraint("Vertical", 40),
    Sketcher.Constraint("Horizontal", 41),
    Sketcher.Constraint("Vertical", 42),
    Sketcher.Constraint("Horizontal", 43),
    Sketcher.Constraint("Vertical", 44),
    Sketcher.Constraint("Horizontal", 45),
    Sketcher.Constraint("Vertical", 46),
    Sketcher.Constraint("Horizontal", 47),
    Sketcher.Constraint("Symmetric", 7, 2, 8, 2, -1),
    Sketcher.Constraint("Symmetric", 5, 2, 10, 2, -1),
    Sketcher.Constraint("Symmetric", 18, 2, 21, 2, -1),
    Sketcher.Constraint("Symmetric", 16, 2, 23, 2, -1),
    Sketcher.Constraint("Symmetric", 26, 2, 29, 2, -1),
    Sketcher.Constraint("Symmetric", 35, 2, 36, 2, -1),
    Sketcher.Constraint("Symmetric", 33, 2, 38, 2, -1),
    Sketcher.Constraint("Symmetric", 43, 2, 44, 2, -1),
    Sketcher.Constraint("Symmetric", 41, 2, 46, 2, -1),
    Sketcher.Constraint("Horizontal", 7, 2, 16, 2),
    Sketcher.Constraint("Horizontal", 3, 2, 18, 2),
    Sketcher.Constraint("Horizontal", 1, 2, 20, 2),
    Sketcher.Constraint("Horizontal", 11, 2, 24, 2),
    Sketcher.Constraint("Horizontal", 13, 2, 26, 2),
    Sketcher.Constraint("Horizontal", 15, 2, 28, 2),
    Sketcher.Constraint("Horizontal", 5, 2, 30, 2),
    Sketcher.Constraint("Horizontal", 21, 2, 32, 2),
    Sketcher.Constraint("Horizontal", 37, 2, 40, 2),
    Sketcher.Constraint("Horizontal", 39, 2, 42, 2),
    Sketcher.Constraint("Vertical", 11, 2, 12, 2),
    Sketcher.Constraint("Vertical", 10, 2, 13, 2),
    Sketcher.Constraint("Vertical", 22, 2, 25, 2),
    Sketcher.Constraint("Vertical", 24, 2, 27, 2),
    Sketcher.Constraint("Equal", 15, 17),
    Sketcher.Constraint("Equal", 39, 41),
    Sketcher.Constraint("Equal", 10, 12),
    Sketcher.Constraint("Equal", 31, 32),
    Sketcher.Constraint("DistanceX", 1, 1, 1, 2, 12.0),
    Sketcher.Constraint("DistanceX", 5, 1, 5, 2, 2.0),
    Sketcher.Constraint("DistanceX", 33, 1, 33, 2, 5.0),
    Sketcher.Constraint("DistanceY", 0, 1, 0, 2, 50.0),
    Sketcher.Constraint("DistanceY", 4, 1, 4, 2, 7.0),
    Sketcher.Constraint("DistanceY", 18, 2, 18, 1, 6.0),
    Sketcher.Constraint("DistanceX", 19, 2, 19, 1, 13.3),
    Sketcher.Constraint("DistanceX", 4, 2, 3, 2, 6.0),
    Sketcher.Constraint("DistanceX", 32, 2, 8, 2, 10.0),
    Sketcher.Constraint("DistanceX", 16, 2, 40, 2, 5.0),
    Sketcher.Constraint("DistanceX", -1, 1, 0, 2, 35.2),
    Sketcher.Constraint("DistanceX", 16, 2, -1, 1, 28.2),
])
pocket5 = body.newObject("PartDesign::Pocket", "Pocket004")
pocket5.Profile = sketch6
pocket5.Length = 6
pocket5.Reversed = True

doc.recompute()
